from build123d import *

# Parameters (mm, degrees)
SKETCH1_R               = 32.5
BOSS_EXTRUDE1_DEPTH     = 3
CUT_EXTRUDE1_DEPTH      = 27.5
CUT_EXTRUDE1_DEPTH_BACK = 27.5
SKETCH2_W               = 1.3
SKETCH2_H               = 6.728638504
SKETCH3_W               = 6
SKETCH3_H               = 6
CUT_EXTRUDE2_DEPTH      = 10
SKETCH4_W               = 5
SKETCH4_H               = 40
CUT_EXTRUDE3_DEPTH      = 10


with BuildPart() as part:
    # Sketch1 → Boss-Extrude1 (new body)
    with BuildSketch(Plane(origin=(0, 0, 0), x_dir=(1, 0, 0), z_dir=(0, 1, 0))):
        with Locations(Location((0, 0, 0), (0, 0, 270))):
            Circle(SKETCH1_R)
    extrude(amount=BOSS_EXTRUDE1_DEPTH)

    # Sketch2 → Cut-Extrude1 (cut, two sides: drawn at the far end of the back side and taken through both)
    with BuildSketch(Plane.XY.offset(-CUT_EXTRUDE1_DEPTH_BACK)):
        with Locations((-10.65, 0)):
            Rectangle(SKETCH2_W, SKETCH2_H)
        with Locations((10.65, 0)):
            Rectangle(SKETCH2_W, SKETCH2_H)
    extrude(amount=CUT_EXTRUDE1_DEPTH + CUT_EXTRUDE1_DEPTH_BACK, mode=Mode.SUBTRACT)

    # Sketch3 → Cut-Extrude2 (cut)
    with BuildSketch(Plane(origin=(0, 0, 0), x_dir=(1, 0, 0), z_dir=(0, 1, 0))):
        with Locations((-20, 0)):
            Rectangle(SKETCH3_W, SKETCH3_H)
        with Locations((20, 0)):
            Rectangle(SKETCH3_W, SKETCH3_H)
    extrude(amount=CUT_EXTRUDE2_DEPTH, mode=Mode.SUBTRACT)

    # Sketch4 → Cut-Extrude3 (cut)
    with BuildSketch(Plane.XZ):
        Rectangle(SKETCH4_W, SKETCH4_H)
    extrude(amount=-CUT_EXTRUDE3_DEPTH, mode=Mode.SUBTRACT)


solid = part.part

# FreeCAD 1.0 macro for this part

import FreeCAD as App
import Part
import Sketcher
Q = App.Units.Quantity

doc = App.newDocument("Part")
body = doc.addObject("PartDesign::Body", "Body")

# Sketch on XZ plane
sketch1 = doc.addObject("Sketcher::SketchObject", "Sketch")
body.addObject(sketch1)
sketch1.AttachmentSupport = (doc.XZ_Plane, [""])
sketch1.MapMode = "FlatFace"
sketch1.addGeometry(Part.Circle(App.Vector(0, 0, 0), App.Vector(0, 0, 1), 32.5), False)
sketch1.addConstraint([
    Sketcher.Constraint("Coincident", 0, 3, -1, 1),
    Sketcher.Constraint("Diameter", 0, Q("65 mm")),
])
pad1 = doc.addObject("PartDesign::Pad", "Pad")
body.addObject(pad1)
pad1.Profile = sketch1
pad1.Length = 3
pad1.Reversed = True

# Sketch on XY plane
sketch2 = doc.addObject("Sketcher::SketchObject", "Sketch001")
body.addObject(sketch2)
sketch2.AttachmentSupport = (doc.XY_Plane, [""])
sketch2.MapMode = "FlatFace"
sketch2.addGeometry([
    Part.LineSegment(App.Vector(-11.3, 3.364319, 0), App.Vector(-11.3, -3.364319, 0)),  # 0
    Part.LineSegment(App.Vector(-11.3, -3.364319, 0), App.Vector(-10, -3.364319, 0)),  # 1
    Part.LineSegment(App.Vector(-10, -3.364319, 0), App.Vector(-10, 3.364319, 0)),  # 2
    Part.LineSegment(App.Vector(-10, 3.364319, 0), App.Vector(-11.3, 3.364319, 0)),  # 3
    Part.LineSegment(App.Vector(10, 3.364319, 0), App.Vector(10, -3.364319, 0)),  # 4
    Part.LineSegment(App.Vector(10, -3.364319, 0), App.Vector(11.3, -3.364319, 0)),  # 5
    Part.LineSegment(App.Vector(11.3, -3.364319, 0), App.Vector(11.3, 3.364319, 0)),  # 6
    Part.LineSegment(App.Vector(11.3, 3.364319, 0), App.Vector(10, 3.364319, 0)),  # 7
], False)
sketch2.addConstraint([
    Sketcher.Constraint("Coincident", 0, 2, 1, 1),
    Sketcher.Constraint("Coincident", 1, 2, 2, 1),
    Sketcher.Constraint("Coincident", 2, 2, 3, 1),
    Sketcher.Constraint("Coincident", 3, 2, 0, 1),
    Sketcher.Constraint("Coincident", 4, 2, 5, 1),
    Sketcher.Constraint("Coincident", 5, 2, 6, 1),
    Sketcher.Constraint("Coincident", 6, 2, 7, 1),
    Sketcher.Constraint("Coincident", 7, 2, 4, 1),
    Sketcher.Constraint("Vertical", 0),
    Sketcher.Constraint("Horizontal", 1),
    Sketcher.Constraint("Vertical", 2),
    Sketcher.Constraint("Horizontal", 3),
    Sketcher.Constraint("Vertical", 4),
    Sketcher.Constraint("Horizontal", 5),
    Sketcher.Constraint("Vertical", 6),
    Sketcher.Constraint("Horizontal", 7),
    Sketcher.Constraint("Symmetric", 2, 2, 4, 2, -1, 1),
    Sketcher.Constraint("Symmetric", 0, 2, 6, 2, -1, 1),
    Sketcher.Constraint("Horizontal", 1, 2, 4, 2),
    Sketcher.Constraint("DistanceX", 1, 1, 1, 2, Q("1.3 mm")),
    Sketcher.Constraint("DistanceX", 1, 2, -1, 1, Q("10 mm")),
    Sketcher.Constraint("DistanceY", 0, 2, 0, 1, Q("6.728639 mm")),
])
pocket1 = doc.addObject("PartDesign::Pocket", "Pocket")
body.addObject(pocket1)
pocket1.Profile = sketch2
pocket1.Type = "TwoLengths"
pocket1.Length = 27.5
pocket1.Length2 = 27.5
pocket1.Reversed = True

# Sketch on XZ plane
sketch3 = doc.addObject("Sketcher::SketchObject", "Sketch002")
body.addObject(sketch3)
sketch3.AttachmentSupport = (doc.XZ_Plane, [""])
sketch3.MapMode = "FlatFace"
sketch3.addGeometry([
    Part.LineSegment(App.Vector(-23, -3, 0), App.Vector(-23, 3, 0)),  # 0
    Part.LineSegment(App.Vector(-23, 3, 0), App.Vector(-17, 3, 0)),  # 1
    Part.LineSegment(App.Vector(-17, 3, 0), App.Vector(-17, -3, 0)),  # 2
    Part.LineSegment(App.Vector(-17, -3, 0), App.Vector(-23, -3, 0)),  # 3
    Part.LineSegment(App.Vector(17, -3, 0), App.Vector(17, 3, 0)),  # 4
    Part.LineSegment(App.Vector(17, 3, 0), App.Vector(23, 3, 0)),  # 5
    Part.LineSegment(App.Vector(23, 3, 0), App.Vector(23, -3, 0)),  # 6
    Part.LineSegment(App.Vector(23, -3, 0), App.Vector(17, -3, 0)),  # 7
], False)
sketch3.addConstraint([
    Sketcher.Constraint("Coincident", 0, 2, 1, 1),
    Sketcher.Constraint("Coincident", 1, 2, 2, 1),
    Sketcher.Constraint("Coincident", 2, 2, 3, 1),
    Sketcher.Constraint("Coincident", 3, 2, 0, 1),
    Sketcher.Constraint("Coincident", 4, 2, 5, 1),
    Sketcher.Constraint("Coincident", 5, 2, 6, 1),
    Sketcher.Constraint("Coincident", 6, 2, 7, 1),
    Sketcher.Constraint("Coincident", 7, 2, 4, 1),
    Sketcher.Constraint("Vertical", 0),
    Sketcher.Constraint("Horizontal", 1),
    Sketcher.Constraint("Vertical", 2),
    Sketcher.Constraint("Horizontal", 3),
    Sketcher.Constraint("Vertical", 4),
    Sketcher.Constraint("Horizontal", 5),
    Sketcher.Constraint("Vertical", 6),
    Sketcher.Constraint("Horizontal", 7),
    Sketcher.Constraint("Symmetric", 2, 2, 4, 2, -1, 1),
    Sketcher.Constraint("Symmetric", 0, 2, 6, 2, -1, 1),
    Sketcher.Constraint("Horizontal", 1, 2, 4, 2),
    Sketcher.Constraint("Equal", 7, 0),
    Sketcher.Constraint("DistanceX", 1, 1, 1, 2, Q("6 mm")),
    Sketcher.Constraint("DistanceX", 0, 2, -1, 1, Q("23 mm")),
])
pocket2 = doc.addObject("PartDesign::Pocket", "Pocket001")
body.addObject(pocket2)
pocket2.Profile = sketch3
pocket2.Length = 10

# Sketch on XZ plane
sketch4 = doc.addObject("Sketcher::SketchObject", "Sketch003")
body.addObject(sketch4)
sketch4.AttachmentSupport = (doc.XZ_Plane, [""])
sketch4.MapMode = "FlatFace"
sketch4.addGeometry([
    Part.LineSegment(App.Vector(-2.5, 20, 0), App.Vector(-2.5, -20, 0)),
    Part.LineSegment(App.Vector(-2.5, -20, 0), App.Vector(2.5, -20, 0)),
    Part.LineSegment(App.Vector(2.5, -20, 0), App.Vector(2.5, 20, 0)),
    Part.LineSegment(App.Vector(2.5, 20, 0), App.Vector(-2.5, 20, 0)),
], False)
sketch4.addConstraint([
    Sketcher.Constraint("Coincident", 0, 2, 1, 1),
    Sketcher.Constraint("Coincident", 1, 2, 2, 1),
    Sketcher.Constraint("Coincident", 2, 2, 3, 1),
    Sketcher.Constraint("Coincident", 3, 2, 0, 1),
    Sketcher.Constraint("Vertical", 0),
    Sketcher.Constraint("Horizontal", 1),
    Sketcher.Constraint("Vertical", 2),
    Sketcher.Constraint("Horizontal", 3),
    Sketcher.Constraint("Symmetric", 0, 2, 2, 2, -1, 1),
    Sketcher.Constraint("DistanceX", 1, 1, 1, 2, Q("5 mm")),
    Sketcher.Constraint("DistanceY", 0, 2, 0, 1, Q("40 mm")),
])
pocket3 = doc.addObject("PartDesign::Pocket", "Pocket002")
body.addObject(pocket3)
pocket3.Profile = sketch4
pocket3.Length = 10

doc.recompute()
